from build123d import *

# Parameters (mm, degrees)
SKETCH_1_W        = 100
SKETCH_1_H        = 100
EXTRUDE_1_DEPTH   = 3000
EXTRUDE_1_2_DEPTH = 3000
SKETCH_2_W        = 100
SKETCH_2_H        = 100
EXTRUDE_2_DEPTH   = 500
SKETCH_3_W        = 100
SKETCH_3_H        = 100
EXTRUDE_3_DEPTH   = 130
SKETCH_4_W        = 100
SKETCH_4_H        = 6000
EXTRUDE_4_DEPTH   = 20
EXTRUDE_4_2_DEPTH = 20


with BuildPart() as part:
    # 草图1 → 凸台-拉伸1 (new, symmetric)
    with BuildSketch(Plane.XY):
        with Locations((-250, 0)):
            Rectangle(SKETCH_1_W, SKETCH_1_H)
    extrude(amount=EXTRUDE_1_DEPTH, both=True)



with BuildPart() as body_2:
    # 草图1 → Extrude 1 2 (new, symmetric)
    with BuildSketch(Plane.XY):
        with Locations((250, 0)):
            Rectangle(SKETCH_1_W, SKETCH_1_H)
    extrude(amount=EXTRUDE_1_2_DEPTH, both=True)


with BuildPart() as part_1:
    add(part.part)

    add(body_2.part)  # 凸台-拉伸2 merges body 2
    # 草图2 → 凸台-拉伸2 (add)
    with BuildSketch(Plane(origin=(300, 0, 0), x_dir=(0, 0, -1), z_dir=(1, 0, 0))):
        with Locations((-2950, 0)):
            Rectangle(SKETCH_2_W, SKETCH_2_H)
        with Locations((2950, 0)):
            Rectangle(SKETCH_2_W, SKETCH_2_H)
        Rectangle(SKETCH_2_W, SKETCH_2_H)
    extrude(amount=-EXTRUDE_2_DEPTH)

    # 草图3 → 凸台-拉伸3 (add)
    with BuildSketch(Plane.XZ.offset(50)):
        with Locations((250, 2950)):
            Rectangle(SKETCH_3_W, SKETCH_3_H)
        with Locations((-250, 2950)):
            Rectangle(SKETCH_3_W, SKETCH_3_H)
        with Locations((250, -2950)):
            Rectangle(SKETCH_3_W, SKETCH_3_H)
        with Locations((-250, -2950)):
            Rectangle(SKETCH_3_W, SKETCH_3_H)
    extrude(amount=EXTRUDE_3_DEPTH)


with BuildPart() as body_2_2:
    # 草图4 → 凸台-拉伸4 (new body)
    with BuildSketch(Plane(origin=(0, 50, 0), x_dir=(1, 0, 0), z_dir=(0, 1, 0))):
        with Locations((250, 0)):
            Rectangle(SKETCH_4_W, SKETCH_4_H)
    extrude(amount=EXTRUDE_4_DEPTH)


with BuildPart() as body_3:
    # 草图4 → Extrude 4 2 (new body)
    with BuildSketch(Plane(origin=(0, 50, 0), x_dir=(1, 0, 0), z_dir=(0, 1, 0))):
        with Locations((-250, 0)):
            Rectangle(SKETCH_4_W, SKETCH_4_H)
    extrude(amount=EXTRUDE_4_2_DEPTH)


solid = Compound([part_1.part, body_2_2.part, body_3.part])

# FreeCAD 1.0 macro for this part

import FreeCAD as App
import Part
import Sketcher

V = App.Vector
Q = App.Units.Quantity

doc = App.newDocument("Part")
body = doc.addObject("PartDesign::Body", "Body")

# Sketch on XY plane
sketch1 = doc.addObject("Sketcher::SketchObject", "Sketch")
body.addObject(sketch1)
sketch1.AttachmentSupport = (doc.XY_Plane, [""])
sketch1.MapMode = "FlatFace"
sketch1.addGeometry([
    Part.LineSegment(V(-300, 50, 0), V(-300, -50, 0)),
    Part.LineSegment(V(-300, -50, 0), V(-200, -50, 0)),
    Part.LineSegment(V(-200, -50, 0), V(-200, 50, 0)),
    Part.LineSegment(V(-200, 50, 0), V(-300, 50, 0)),
], False)
sketch1.addConstraint([
    Sketcher.Constraint("Coincident", 0, 2, 1, 1),
    Sketcher.Constraint("Coincident", 1, 2, 2, 1),
    Sketcher.Constraint("Coincident", 2, 2, 3, 1),
    Sketcher.Constraint("Coincident", 3, 2, 0, 1),
    Sketcher.Constraint("Vertical", 0),
    Sketcher.Constraint("Horizontal", 1),
    Sketcher.Constraint("Vertical", 2),
    Sketcher.Constraint("Horizontal", 3),
    Sketcher.Constraint("Equal", 3, 0),
    Sketcher.Constraint("DistanceX", 1, 1, 1, 2, Q("100 mm")),
    Sketcher.Constraint("DistanceX", 0, 2, -1, 1, Q("300 mm")),
    Sketcher.Constraint("DistanceY", 0, 2, -1, 1, Q("50 mm")),
])
pad1 = doc.addObject("PartDesign::Pad", "Pad")
body.addObject(pad1)
pad1.Profile = sketch1
pad1.Length = 6000
pad1.Midplane = True
body2 = doc.addObject("PartDesign::Body", "Body001")

# Sketch on XY plane
sketch2 = doc.addObject("Sketcher::SketchObject", "Sketch001")
body2.addObject(sketch2)
sketch2.AttachmentSupport = (doc.getObject("XY_Plane001"), [""])
sketch2.MapMode = "FlatFace"
sketch2.addGeometry([
    Part.LineSegment(V(200, 50, 0), V(200, -50, 0)),
    Part.LineSegment(V(200, -50, 0), V(300, -50, 0)),
    Part.LineSegment(V(300, -50, 0), V(300, 50, 0)),
    Part.LineSegment(V(300, 50, 0), V(200, 50, 0)),
], False)
sketch2.addConstraint([
    Sketcher.Constraint("Coincident", 0, 2, 1, 1),
    Sketcher.Constraint("Coincident", 1, 2, 2, 1),
    Sketcher.Constraint("Coincident", 2, 2, 3, 1),
    Sketcher.Constraint("Coincident", 3, 2, 0, 1),
    Sketcher.Constraint("Vertical", 0),
    Sketcher.Constraint("Horizontal", 1),
    Sketcher.Constraint("Vertical", 2),
    Sketcher.Constraint("Horizontal", 3),
    Sketcher.Constraint("Equal", 3, 0),
    Sketcher.Constraint("DistanceX", 1, 1, 1, 2, Q("100 mm")),
    Sketcher.Constraint("DistanceX", -1, 1, 0, 2, Q("200 mm")),
    Sketcher.Constraint("DistanceY", 0, 2, -1, 1, Q("50 mm")),
])
pad2 = doc.addObject("PartDesign::Pad", "Pad001")
body2.addObject(pad2)
pad2.Profile = sketch2
pad2.Length = 6000
pad2.Midplane = True
body.AllowCompound = True
doc.recompute()

boolean = doc.addObject("PartDesign::Boolean", "Boolean")
body.addObject(boolean)
boolean.Type = "Fuse"
boolean.addObjects([body2])

# Sketch on YZ plane
sketch3 = doc.addObject("Sketcher::SketchObject", "Sketch002")
body.addObject(sketch3)
sketch3.AttachmentSupport = (doc.YZ_Plane, [""])
sketch3.MapMode = "FlatFace"
sketch3.AttachmentOffset = App.Placement(V(0, 0, 300), App.Rotation())
sketch3.addGeometry([
    Part.LineSegment(V(50, 3000, 0), V(-50, 3000, 0)),  # 0
    Part.LineSegment(V(-50, 3000, 0), V(-50, 2900, 0)),  # 1
    Part.LineSegment(V(-50, 2900, 0), V(50, 2900, 0)),  # 2
    Part.LineSegment(V(50, 2900, 0), V(50, 3000, 0)),  # 3
    Part.LineSegment(V(50, -2900, 0), V(-50, -2900, 0)),  # 4
    Part.LineSegment(V(-50, -2900, 0), V(-50, -3000, 0)),  # 5
    Part.LineSegment(V(-50, -3000, 0), V(50, -3000, 0)),  # 6
    Part.LineSegment(V(50, -3000, 0), V(50, -2900, 0)),  # 7
    Part.LineSegment(V(50, 50, 0), V(-50, 50, 0)),  # 8
    Part.LineSegment(V(-50, 50, 0), V(-50, -50, 0)),  # 9
    Part.LineSegment(V(-50, -50, 0), V(50, -50, 0)),  # 10
    Part.LineSegment(V(50, -50, 0), V(50, 50, 0)),  # 11
], False)
sketch3.addConstraint([
    Sketcher.Constraint("Coincident", 0, 2, 1, 1),
    Sketcher.Constraint("Coincident", 1, 2, 2, 1),
    Sketcher.Constraint("Coincident", 2, 2, 3, 1),
    Sketcher.Constraint("Coincident", 3, 2, 0, 1),
    Sketcher.Constraint("Coincident", 4, 2, 5, 1),
    Sketcher.Constraint("Coincident", 5, 2, 6, 1),
    Sketcher.Constraint("Coincident", 6, 2, 7, 1),
    Sketcher.Constraint("Coincident", 7, 2, 4, 1),
    Sketcher.Constraint("Coincident", 8, 2, 9, 1),
    Sketcher.Constraint("Coincident", 9, 2, 10, 1),
    Sketcher.Constraint("Coincident", 10, 2, 11, 1),
    Sketcher.Constraint("Coincident", 11, 2, 8, 1),
    Sketcher.Constraint("Horizontal", 0),
    Sketcher.Constraint("Vertical", 1),
    Sketcher.Constraint("Horizontal", 2),
    Sketcher.Constraint("Vertical", 3),
    Sketcher.Constraint("Horizontal", 4),
    Sketcher.Constraint("Vertical", 5),
    Sketcher.Constraint("Horizontal", 6),
    Sketcher.Constraint("Vertical", 7),
    Sketcher.Constraint("Horizontal", 8),
    Sketcher.Constraint("Vertical", 9),
    Sketcher.Constraint("Horizontal", 10),
    Sketcher.Constraint("Vertical", 11),
    Sketcher.Constraint("Symmetric", 2, 2, 4, 2, -1, 1),
    Sketcher.Constraint("Symmetric", 0, 2, 6, 2, -1, 1),
    Sketcher.Constraint("Symmetric", 8, 2, 10, 2, -1, 1),
    Sketcher.Constraint("Vertical", 1, 2, 4, 2),
    Sketcher.Constraint("Vertical", 5, 2, 8, 2),
    Sketcher.Constraint("Equal", 10, 1),
    Sketcher.Constraint("Equal", 7, 9),
    Sketcher.Constraint("DistanceX", 0, 2, 0, 1, Q("100 mm")),
    Sketcher.Constraint("DistanceY", -1, 1, 0, 2, Q("3000 mm")),
])
pad3 = doc.addObject("PartDesign::Pad", "Pad002")
body.addObject(pad3)
pad3.Profile = sketch3
pad3.Length = 500
pad3.Reversed = True

# Sketch on XZ plane
sketch4 = doc.addObject("Sketcher::SketchObject", "Sketch003")
body.addObject(sketch4)
sketch4.AttachmentSupport = (doc.XZ_Plane, [""])
sketch4.MapMode = "FlatFace"
sketch4.AttachmentOffset = App.Placement(V(0, 0, 50), App.Rotation())
sketch4.addGeometry([
    Part.LineSegment(V(200, 3000, 0), V(200, 2900, 0)),  # 0
    Part.LineSegment(V(200, 2900, 0), V(300, 2900, 0)),  # 1
    Part.LineSegment(V(300, 2900, 0), V(300, 3000, 0)),  # 2
    Part.LineSegment(V(300, 3000, 0), V(200, 3000, 0)),  # 3
    Part.LineSegment(V(-300, 3000, 0), V(-300, 2900, 0)),  # 4
    Part.LineSegment(V(-300, 2900, 0), V(-200, 2900, 0)),  # 5
    Part.LineSegment(V(-200, 2900, 0), V(-200, 3000, 0)),  # 6
    Part.LineSegment(V(-200, 3000, 0), V(-300, 3000, 0)),  # 7
    Part.LineSegment(V(200, -2900, 0), V(200, -3000, 0)),  # 8
    Part.LineSegment(V(200, -3000, 0), V(300, -3000, 0)),  # 9
    Part.LineSegment(V(300, -3000, 0), V(300, -2900, 0)),  # 10
    Part.LineSegment(V(300, -2900, 0), V(200, -2900, 0)),  # 11
    Part.LineSegment(V(-300, -2900, 0), V(-300, -3000, 0)),  # 12
    Part.LineSegment(V(-300, -3000, 0), V(-200, -3000, 0)),  # 13
    Part.LineSegment(V(-200, -3000, 0), V(-200, -2900, 0)),  # 14
    Part.LineSegment(V(-200, -2900, 0), V(-300, -2900, 0)),  # 15
], False)
sketch4.addConstraint([
    Sketcher.Constraint("Coincident", 0, 2, 1, 1),
    Sketcher.Constraint("Coincident", 1, 2, 2, 1),
    Sketcher.Constraint("Coincident", 2, 2, 3, 1),
    Sketcher.Constraint("Coincident", 3, 2, 0, 1),
    Sketcher.Constraint("Coincident", 4, 2, 5, 1),
    Sketcher.Constraint("Coincident", 5, 2, 6, 1),
    Sketcher.Constraint("Coincident", 6, 2, 7, 1),
    Sketcher.Constraint("Coincident", 7, 2, 4, 1),
    Sketcher.Constraint("Coincident", 8, 2, 9, 1),
    Sketcher.Constraint("Coincident", 9, 2, 10, 1),
    Sketcher.Constraint("Coincident", 10, 2, 11, 1),
    Sketcher.Constraint("Coincident", 11, 2, 8, 1),
    Sketcher.Constraint("Coincident", 12, 2, 13, 1),
    Sketcher.Constraint("Coincident", 13, 2, 14, 1),
    Sketcher.Constraint("Coincident", 14, 2, 15, 1),
    Sketcher.Constraint("Coincident", 15, 2, 12, 1),
    Sketcher.Constraint("Vertical", 0),
    Sketcher.Constraint("Horizontal", 1),
    Sketcher.Constraint("Vertical", 2),
    Sketcher.Constraint("Horizontal", 3),
    Sketcher.Constraint("Vertical", 4),
    Sketcher.Constraint("Horizontal", 5),
    Sketcher.Constraint("Vertical", 6),
    Sketcher.Constraint("Horizontal", 7),
    Sketcher.Constraint("Vertical", 8),
    Sketcher.Constraint("Horizontal", 9),
    Sketcher.Constraint("Vertical", 10),
    Sketcher.Constraint("Horizontal", 11),
    Sketcher.Constraint("Vertical", 12),
    Sketcher.Constraint("Horizontal", 13),
    Sketcher.Constraint("Vertical", 14),
    Sketcher.Constraint("Horizontal", 15),
    Sketcher.Constraint("Symmetric", 6, 2, 8, 2, -1, 1),
    Sketcher.Constraint("Symmetric", 4, 2, 10, 2, -1, 1),
    Sketcher.Constraint("Symmetric", 2, 2, 12, 2, -1, 1),
    Sketcher.Constraint("Symmetric", 0, 2, 14, 2, -1, 1),
    Sketcher.Constraint("Symmetric", 1, 2, 4, 2, -2),
    Sketcher.Constraint("Symmetric", 3, 2, 6, 2, -2),
    Sketcher.Constraint("Equal", 15, 0),
    Sketcher.Constraint("DistanceX", 1, 1, 1, 2, Q("100 mm")),
    Sketcher.Constraint("DistanceX", -1, 1, 0, 2, Q("200 mm")),
    Sketcher.Constraint("DistanceY", -1, 1, 0, 2, Q("2900 mm")),
])
pad4 = doc.addObject("PartDesign::Pad", "Pad003")
body.addObject(pad4)
pad4.Profile = sketch4
pad4.Length = 130
body3 = doc.addObject("PartDesign::Body", "Body002")

# Sketch on XZ plane
sketch5 = doc.addObject("Sketcher::SketchObject", "Sketch004")
body3.addObject(sketch5)
sketch5.AttachmentSupport = (doc.getObject("XZ_Plane002"), [""])
sketch5.MapMode = "FlatFace"
sketch5.AttachmentOffset = App.Placement(V(0, 0, -50), App.Rotation())
sketch5.addGeometry([
    Part.LineSegment(V(200, -3000, 0), V(200, 3000, 0)),
    Part.LineSegment(V(200, 3000, 0), V(300, 3000, 0)),
    Part.LineSegment(V(300, 3000, 0), V(300, -3000, 0)),
    Part.LineSegment(V(300, -3000, 0), V(200, -3000, 0)),
], False)
sketch5.addConstraint([
    Sketcher.Constraint("Coincident", 0, 2, 1, 1),
    Sketcher.Constraint("Coincident", 1, 2, 2, 1),
    Sketcher.Constraint("Coincident", 2, 2, 3, 1),
    Sketcher.Constraint("Coincident", 3, 2, 0, 1),
    Sketcher.Constraint("Vertical", 0),
    Sketcher.Constraint("Horizontal", 1),
    Sketcher.Constraint("Vertical", 2),
    Sketcher.Constraint("Horizontal", 3),
    Sketcher.Constraint("DistanceX", 1, 1, 1, 2, Q("100 mm")),
    Sketcher.Constraint("DistanceY", 0, 1, 0, 2, Q("6000 mm")),
    Sketcher.Constraint("DistanceX", -1, 1, 0, 2, Q("200 mm")),
    Sketcher.Constraint("DistanceY", -1, 1, 0, 2, Q("3000 mm")),
])
pad5 = doc.addObject("PartDesign::Pad", "Pad004")
body3.addObject(pad5)
pad5.Profile = sketch5
pad5.Length = 20
pad5.Reversed = True
body4 = doc.addObject("PartDesign::Body", "Body003")

# Sketch on XZ plane
sketch6 = doc.addObject("Sketcher::SketchObject", "Sketch005")
body4.addObject(sketch6)
sketch6.AttachmentSupport = (doc.getObject("XZ_Plane003"), [""])
sketch6.MapMode = "FlatFace"
sketch6.AttachmentOffset = App.Placement(V(0, 0, -50), App.Rotation())
sketch6.addGeometry([
    Part.LineSegment(V(-300, -3000, 0), V(-300, 3000, 0)),
    Part.LineSegment(V(-300, 3000, 0), V(-200, 3000, 0)),
    Part.LineSegment(V(-200, 3000, 0), V(-200, -3000, 0)),
    Part.LineSegment(V(-200, -3000, 0), V(-300, -3000, 0)),
], False)
sketch6.addConstraint([
    Sketcher.Constraint("Coincident", 0, 2, 1, 1),
    Sketcher.Constraint("Coincident", 1, 2, 2, 1),
    Sketcher.Constraint("Coincident", 2, 2, 3, 1),
    Sketcher.Constraint("Coincident", 3, 2, 0, 1),
    Sketcher.Constraint("Vertical", 0),
    Sketcher.Constraint("Horizontal", 1),
    Sketcher.Constraint("Vertical", 2),
    Sketcher.Constraint("Horizontal", 3),
    Sketcher.Constraint("DistanceX", 1, 1, 1, 2, Q("100 mm")),
    Sketcher.Constraint("DistanceY", 0, 1, 0, 2, Q("6000 mm")),
    Sketcher.Constraint("DistanceX", 0, 2, -1, 1, Q("300 mm")),
    Sketcher.Constraint("DistanceY", -1, 1, 0, 2, Q("3000 mm")),
])
pad6 = doc.addObject("PartDesign::Pad", "Pad005")
body4.addObject(pad6)
pad6.Profile = sketch6
pad6.Length = 20
pad6.Reversed = True

doc.recompute()
